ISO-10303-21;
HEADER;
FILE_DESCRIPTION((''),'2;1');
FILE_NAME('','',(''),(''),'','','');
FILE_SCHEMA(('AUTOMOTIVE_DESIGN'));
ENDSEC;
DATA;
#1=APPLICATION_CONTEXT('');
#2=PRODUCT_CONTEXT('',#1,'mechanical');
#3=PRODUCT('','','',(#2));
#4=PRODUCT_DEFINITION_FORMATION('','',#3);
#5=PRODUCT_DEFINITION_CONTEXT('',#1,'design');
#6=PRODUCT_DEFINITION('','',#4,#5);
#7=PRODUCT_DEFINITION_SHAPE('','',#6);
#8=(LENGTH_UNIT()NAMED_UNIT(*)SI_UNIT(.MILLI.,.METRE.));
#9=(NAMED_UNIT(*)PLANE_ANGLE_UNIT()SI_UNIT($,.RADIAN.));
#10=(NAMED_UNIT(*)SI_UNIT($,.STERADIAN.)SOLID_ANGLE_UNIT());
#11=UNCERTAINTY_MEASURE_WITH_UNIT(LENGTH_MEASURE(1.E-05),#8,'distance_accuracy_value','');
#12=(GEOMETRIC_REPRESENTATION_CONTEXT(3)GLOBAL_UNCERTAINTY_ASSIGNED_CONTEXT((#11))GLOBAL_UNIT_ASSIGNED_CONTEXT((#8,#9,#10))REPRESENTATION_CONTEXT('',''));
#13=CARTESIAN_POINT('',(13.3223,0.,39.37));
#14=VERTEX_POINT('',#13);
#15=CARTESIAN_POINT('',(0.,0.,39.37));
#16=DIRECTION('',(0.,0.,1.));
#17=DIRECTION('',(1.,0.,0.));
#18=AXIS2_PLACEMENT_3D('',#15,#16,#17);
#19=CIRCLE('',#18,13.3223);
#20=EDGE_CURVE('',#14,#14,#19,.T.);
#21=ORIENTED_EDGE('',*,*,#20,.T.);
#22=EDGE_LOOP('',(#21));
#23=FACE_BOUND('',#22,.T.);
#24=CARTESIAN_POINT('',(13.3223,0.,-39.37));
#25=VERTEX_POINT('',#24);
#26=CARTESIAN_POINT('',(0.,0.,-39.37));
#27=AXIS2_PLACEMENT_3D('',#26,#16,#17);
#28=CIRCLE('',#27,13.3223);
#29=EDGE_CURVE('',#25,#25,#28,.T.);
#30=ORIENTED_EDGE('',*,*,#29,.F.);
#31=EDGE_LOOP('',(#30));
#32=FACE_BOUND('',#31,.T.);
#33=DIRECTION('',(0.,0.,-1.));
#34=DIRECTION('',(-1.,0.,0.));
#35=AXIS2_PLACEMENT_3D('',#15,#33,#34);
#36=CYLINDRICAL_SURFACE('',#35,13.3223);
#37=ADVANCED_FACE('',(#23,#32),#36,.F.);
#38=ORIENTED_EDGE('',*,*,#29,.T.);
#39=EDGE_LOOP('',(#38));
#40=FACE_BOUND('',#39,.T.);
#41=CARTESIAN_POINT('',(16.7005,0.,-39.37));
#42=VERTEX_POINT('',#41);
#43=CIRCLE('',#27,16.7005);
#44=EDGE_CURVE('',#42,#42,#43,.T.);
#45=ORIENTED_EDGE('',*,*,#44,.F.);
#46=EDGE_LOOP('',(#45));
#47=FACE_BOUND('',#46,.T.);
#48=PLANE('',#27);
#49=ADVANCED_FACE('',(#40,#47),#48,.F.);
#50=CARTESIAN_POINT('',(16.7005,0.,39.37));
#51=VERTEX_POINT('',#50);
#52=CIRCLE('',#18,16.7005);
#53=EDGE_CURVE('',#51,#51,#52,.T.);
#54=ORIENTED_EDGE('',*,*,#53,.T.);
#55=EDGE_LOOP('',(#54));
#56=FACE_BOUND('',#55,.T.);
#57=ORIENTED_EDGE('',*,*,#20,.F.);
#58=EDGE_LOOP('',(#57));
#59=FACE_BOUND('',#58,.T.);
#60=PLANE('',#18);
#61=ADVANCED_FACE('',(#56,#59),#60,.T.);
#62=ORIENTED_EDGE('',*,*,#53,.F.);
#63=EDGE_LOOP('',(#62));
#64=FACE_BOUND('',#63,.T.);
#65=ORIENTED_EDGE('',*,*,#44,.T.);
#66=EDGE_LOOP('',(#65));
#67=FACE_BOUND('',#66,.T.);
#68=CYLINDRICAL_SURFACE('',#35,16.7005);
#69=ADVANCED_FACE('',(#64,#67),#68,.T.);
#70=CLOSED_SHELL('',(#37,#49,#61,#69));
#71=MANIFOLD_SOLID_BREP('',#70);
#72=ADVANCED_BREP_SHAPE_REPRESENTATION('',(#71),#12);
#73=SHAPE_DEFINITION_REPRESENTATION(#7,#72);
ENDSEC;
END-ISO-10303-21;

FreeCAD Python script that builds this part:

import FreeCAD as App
import Part
import Sketcher
from FreeCAD import Vector
Q = App.Units.Quantity

doc = App.newDocument("Part")
body = doc.addObject("PartDesign::Body", "Body")

sketch1 = doc.addObject("Sketcher::SketchObject", "Sketch")
body.addObject(sketch1)
sketch1.AttachmentSupport = (doc.XY_Plane, [""])
sketch1.MapMode = "FlatFace"
sketch1.addGeometry(Part.Circle(Vector(0, 0, 0), Vector(0, 0, 1), 16.7005), False)
sketch1.addGeometry(Part.Circle(Vector(0, 0, 0), Vector(0, 0, 1), 13.3223), False)
sketch1.addConstraint(Sketcher.Constraint("Coincident", 0, 3, -1, 1))
sketch1.addConstraint(Sketcher.Constraint("Coincident", 1, 3, -1, 1))
sketch1.addConstraint(Sketcher.Constraint("Diameter", 0, Q("1.315 in")))
sketch1.addConstraint(Sketcher.Constraint("Diameter", 1, Q("1.049 in")))
pad1 = doc.addObject("PartDesign::Pad", "Pad")
body.addObject(pad1)
pad1.Profile = sketch1
pad1.Length = Q("3.1 in")
pad1.Midplane = True

doc.recompute()
